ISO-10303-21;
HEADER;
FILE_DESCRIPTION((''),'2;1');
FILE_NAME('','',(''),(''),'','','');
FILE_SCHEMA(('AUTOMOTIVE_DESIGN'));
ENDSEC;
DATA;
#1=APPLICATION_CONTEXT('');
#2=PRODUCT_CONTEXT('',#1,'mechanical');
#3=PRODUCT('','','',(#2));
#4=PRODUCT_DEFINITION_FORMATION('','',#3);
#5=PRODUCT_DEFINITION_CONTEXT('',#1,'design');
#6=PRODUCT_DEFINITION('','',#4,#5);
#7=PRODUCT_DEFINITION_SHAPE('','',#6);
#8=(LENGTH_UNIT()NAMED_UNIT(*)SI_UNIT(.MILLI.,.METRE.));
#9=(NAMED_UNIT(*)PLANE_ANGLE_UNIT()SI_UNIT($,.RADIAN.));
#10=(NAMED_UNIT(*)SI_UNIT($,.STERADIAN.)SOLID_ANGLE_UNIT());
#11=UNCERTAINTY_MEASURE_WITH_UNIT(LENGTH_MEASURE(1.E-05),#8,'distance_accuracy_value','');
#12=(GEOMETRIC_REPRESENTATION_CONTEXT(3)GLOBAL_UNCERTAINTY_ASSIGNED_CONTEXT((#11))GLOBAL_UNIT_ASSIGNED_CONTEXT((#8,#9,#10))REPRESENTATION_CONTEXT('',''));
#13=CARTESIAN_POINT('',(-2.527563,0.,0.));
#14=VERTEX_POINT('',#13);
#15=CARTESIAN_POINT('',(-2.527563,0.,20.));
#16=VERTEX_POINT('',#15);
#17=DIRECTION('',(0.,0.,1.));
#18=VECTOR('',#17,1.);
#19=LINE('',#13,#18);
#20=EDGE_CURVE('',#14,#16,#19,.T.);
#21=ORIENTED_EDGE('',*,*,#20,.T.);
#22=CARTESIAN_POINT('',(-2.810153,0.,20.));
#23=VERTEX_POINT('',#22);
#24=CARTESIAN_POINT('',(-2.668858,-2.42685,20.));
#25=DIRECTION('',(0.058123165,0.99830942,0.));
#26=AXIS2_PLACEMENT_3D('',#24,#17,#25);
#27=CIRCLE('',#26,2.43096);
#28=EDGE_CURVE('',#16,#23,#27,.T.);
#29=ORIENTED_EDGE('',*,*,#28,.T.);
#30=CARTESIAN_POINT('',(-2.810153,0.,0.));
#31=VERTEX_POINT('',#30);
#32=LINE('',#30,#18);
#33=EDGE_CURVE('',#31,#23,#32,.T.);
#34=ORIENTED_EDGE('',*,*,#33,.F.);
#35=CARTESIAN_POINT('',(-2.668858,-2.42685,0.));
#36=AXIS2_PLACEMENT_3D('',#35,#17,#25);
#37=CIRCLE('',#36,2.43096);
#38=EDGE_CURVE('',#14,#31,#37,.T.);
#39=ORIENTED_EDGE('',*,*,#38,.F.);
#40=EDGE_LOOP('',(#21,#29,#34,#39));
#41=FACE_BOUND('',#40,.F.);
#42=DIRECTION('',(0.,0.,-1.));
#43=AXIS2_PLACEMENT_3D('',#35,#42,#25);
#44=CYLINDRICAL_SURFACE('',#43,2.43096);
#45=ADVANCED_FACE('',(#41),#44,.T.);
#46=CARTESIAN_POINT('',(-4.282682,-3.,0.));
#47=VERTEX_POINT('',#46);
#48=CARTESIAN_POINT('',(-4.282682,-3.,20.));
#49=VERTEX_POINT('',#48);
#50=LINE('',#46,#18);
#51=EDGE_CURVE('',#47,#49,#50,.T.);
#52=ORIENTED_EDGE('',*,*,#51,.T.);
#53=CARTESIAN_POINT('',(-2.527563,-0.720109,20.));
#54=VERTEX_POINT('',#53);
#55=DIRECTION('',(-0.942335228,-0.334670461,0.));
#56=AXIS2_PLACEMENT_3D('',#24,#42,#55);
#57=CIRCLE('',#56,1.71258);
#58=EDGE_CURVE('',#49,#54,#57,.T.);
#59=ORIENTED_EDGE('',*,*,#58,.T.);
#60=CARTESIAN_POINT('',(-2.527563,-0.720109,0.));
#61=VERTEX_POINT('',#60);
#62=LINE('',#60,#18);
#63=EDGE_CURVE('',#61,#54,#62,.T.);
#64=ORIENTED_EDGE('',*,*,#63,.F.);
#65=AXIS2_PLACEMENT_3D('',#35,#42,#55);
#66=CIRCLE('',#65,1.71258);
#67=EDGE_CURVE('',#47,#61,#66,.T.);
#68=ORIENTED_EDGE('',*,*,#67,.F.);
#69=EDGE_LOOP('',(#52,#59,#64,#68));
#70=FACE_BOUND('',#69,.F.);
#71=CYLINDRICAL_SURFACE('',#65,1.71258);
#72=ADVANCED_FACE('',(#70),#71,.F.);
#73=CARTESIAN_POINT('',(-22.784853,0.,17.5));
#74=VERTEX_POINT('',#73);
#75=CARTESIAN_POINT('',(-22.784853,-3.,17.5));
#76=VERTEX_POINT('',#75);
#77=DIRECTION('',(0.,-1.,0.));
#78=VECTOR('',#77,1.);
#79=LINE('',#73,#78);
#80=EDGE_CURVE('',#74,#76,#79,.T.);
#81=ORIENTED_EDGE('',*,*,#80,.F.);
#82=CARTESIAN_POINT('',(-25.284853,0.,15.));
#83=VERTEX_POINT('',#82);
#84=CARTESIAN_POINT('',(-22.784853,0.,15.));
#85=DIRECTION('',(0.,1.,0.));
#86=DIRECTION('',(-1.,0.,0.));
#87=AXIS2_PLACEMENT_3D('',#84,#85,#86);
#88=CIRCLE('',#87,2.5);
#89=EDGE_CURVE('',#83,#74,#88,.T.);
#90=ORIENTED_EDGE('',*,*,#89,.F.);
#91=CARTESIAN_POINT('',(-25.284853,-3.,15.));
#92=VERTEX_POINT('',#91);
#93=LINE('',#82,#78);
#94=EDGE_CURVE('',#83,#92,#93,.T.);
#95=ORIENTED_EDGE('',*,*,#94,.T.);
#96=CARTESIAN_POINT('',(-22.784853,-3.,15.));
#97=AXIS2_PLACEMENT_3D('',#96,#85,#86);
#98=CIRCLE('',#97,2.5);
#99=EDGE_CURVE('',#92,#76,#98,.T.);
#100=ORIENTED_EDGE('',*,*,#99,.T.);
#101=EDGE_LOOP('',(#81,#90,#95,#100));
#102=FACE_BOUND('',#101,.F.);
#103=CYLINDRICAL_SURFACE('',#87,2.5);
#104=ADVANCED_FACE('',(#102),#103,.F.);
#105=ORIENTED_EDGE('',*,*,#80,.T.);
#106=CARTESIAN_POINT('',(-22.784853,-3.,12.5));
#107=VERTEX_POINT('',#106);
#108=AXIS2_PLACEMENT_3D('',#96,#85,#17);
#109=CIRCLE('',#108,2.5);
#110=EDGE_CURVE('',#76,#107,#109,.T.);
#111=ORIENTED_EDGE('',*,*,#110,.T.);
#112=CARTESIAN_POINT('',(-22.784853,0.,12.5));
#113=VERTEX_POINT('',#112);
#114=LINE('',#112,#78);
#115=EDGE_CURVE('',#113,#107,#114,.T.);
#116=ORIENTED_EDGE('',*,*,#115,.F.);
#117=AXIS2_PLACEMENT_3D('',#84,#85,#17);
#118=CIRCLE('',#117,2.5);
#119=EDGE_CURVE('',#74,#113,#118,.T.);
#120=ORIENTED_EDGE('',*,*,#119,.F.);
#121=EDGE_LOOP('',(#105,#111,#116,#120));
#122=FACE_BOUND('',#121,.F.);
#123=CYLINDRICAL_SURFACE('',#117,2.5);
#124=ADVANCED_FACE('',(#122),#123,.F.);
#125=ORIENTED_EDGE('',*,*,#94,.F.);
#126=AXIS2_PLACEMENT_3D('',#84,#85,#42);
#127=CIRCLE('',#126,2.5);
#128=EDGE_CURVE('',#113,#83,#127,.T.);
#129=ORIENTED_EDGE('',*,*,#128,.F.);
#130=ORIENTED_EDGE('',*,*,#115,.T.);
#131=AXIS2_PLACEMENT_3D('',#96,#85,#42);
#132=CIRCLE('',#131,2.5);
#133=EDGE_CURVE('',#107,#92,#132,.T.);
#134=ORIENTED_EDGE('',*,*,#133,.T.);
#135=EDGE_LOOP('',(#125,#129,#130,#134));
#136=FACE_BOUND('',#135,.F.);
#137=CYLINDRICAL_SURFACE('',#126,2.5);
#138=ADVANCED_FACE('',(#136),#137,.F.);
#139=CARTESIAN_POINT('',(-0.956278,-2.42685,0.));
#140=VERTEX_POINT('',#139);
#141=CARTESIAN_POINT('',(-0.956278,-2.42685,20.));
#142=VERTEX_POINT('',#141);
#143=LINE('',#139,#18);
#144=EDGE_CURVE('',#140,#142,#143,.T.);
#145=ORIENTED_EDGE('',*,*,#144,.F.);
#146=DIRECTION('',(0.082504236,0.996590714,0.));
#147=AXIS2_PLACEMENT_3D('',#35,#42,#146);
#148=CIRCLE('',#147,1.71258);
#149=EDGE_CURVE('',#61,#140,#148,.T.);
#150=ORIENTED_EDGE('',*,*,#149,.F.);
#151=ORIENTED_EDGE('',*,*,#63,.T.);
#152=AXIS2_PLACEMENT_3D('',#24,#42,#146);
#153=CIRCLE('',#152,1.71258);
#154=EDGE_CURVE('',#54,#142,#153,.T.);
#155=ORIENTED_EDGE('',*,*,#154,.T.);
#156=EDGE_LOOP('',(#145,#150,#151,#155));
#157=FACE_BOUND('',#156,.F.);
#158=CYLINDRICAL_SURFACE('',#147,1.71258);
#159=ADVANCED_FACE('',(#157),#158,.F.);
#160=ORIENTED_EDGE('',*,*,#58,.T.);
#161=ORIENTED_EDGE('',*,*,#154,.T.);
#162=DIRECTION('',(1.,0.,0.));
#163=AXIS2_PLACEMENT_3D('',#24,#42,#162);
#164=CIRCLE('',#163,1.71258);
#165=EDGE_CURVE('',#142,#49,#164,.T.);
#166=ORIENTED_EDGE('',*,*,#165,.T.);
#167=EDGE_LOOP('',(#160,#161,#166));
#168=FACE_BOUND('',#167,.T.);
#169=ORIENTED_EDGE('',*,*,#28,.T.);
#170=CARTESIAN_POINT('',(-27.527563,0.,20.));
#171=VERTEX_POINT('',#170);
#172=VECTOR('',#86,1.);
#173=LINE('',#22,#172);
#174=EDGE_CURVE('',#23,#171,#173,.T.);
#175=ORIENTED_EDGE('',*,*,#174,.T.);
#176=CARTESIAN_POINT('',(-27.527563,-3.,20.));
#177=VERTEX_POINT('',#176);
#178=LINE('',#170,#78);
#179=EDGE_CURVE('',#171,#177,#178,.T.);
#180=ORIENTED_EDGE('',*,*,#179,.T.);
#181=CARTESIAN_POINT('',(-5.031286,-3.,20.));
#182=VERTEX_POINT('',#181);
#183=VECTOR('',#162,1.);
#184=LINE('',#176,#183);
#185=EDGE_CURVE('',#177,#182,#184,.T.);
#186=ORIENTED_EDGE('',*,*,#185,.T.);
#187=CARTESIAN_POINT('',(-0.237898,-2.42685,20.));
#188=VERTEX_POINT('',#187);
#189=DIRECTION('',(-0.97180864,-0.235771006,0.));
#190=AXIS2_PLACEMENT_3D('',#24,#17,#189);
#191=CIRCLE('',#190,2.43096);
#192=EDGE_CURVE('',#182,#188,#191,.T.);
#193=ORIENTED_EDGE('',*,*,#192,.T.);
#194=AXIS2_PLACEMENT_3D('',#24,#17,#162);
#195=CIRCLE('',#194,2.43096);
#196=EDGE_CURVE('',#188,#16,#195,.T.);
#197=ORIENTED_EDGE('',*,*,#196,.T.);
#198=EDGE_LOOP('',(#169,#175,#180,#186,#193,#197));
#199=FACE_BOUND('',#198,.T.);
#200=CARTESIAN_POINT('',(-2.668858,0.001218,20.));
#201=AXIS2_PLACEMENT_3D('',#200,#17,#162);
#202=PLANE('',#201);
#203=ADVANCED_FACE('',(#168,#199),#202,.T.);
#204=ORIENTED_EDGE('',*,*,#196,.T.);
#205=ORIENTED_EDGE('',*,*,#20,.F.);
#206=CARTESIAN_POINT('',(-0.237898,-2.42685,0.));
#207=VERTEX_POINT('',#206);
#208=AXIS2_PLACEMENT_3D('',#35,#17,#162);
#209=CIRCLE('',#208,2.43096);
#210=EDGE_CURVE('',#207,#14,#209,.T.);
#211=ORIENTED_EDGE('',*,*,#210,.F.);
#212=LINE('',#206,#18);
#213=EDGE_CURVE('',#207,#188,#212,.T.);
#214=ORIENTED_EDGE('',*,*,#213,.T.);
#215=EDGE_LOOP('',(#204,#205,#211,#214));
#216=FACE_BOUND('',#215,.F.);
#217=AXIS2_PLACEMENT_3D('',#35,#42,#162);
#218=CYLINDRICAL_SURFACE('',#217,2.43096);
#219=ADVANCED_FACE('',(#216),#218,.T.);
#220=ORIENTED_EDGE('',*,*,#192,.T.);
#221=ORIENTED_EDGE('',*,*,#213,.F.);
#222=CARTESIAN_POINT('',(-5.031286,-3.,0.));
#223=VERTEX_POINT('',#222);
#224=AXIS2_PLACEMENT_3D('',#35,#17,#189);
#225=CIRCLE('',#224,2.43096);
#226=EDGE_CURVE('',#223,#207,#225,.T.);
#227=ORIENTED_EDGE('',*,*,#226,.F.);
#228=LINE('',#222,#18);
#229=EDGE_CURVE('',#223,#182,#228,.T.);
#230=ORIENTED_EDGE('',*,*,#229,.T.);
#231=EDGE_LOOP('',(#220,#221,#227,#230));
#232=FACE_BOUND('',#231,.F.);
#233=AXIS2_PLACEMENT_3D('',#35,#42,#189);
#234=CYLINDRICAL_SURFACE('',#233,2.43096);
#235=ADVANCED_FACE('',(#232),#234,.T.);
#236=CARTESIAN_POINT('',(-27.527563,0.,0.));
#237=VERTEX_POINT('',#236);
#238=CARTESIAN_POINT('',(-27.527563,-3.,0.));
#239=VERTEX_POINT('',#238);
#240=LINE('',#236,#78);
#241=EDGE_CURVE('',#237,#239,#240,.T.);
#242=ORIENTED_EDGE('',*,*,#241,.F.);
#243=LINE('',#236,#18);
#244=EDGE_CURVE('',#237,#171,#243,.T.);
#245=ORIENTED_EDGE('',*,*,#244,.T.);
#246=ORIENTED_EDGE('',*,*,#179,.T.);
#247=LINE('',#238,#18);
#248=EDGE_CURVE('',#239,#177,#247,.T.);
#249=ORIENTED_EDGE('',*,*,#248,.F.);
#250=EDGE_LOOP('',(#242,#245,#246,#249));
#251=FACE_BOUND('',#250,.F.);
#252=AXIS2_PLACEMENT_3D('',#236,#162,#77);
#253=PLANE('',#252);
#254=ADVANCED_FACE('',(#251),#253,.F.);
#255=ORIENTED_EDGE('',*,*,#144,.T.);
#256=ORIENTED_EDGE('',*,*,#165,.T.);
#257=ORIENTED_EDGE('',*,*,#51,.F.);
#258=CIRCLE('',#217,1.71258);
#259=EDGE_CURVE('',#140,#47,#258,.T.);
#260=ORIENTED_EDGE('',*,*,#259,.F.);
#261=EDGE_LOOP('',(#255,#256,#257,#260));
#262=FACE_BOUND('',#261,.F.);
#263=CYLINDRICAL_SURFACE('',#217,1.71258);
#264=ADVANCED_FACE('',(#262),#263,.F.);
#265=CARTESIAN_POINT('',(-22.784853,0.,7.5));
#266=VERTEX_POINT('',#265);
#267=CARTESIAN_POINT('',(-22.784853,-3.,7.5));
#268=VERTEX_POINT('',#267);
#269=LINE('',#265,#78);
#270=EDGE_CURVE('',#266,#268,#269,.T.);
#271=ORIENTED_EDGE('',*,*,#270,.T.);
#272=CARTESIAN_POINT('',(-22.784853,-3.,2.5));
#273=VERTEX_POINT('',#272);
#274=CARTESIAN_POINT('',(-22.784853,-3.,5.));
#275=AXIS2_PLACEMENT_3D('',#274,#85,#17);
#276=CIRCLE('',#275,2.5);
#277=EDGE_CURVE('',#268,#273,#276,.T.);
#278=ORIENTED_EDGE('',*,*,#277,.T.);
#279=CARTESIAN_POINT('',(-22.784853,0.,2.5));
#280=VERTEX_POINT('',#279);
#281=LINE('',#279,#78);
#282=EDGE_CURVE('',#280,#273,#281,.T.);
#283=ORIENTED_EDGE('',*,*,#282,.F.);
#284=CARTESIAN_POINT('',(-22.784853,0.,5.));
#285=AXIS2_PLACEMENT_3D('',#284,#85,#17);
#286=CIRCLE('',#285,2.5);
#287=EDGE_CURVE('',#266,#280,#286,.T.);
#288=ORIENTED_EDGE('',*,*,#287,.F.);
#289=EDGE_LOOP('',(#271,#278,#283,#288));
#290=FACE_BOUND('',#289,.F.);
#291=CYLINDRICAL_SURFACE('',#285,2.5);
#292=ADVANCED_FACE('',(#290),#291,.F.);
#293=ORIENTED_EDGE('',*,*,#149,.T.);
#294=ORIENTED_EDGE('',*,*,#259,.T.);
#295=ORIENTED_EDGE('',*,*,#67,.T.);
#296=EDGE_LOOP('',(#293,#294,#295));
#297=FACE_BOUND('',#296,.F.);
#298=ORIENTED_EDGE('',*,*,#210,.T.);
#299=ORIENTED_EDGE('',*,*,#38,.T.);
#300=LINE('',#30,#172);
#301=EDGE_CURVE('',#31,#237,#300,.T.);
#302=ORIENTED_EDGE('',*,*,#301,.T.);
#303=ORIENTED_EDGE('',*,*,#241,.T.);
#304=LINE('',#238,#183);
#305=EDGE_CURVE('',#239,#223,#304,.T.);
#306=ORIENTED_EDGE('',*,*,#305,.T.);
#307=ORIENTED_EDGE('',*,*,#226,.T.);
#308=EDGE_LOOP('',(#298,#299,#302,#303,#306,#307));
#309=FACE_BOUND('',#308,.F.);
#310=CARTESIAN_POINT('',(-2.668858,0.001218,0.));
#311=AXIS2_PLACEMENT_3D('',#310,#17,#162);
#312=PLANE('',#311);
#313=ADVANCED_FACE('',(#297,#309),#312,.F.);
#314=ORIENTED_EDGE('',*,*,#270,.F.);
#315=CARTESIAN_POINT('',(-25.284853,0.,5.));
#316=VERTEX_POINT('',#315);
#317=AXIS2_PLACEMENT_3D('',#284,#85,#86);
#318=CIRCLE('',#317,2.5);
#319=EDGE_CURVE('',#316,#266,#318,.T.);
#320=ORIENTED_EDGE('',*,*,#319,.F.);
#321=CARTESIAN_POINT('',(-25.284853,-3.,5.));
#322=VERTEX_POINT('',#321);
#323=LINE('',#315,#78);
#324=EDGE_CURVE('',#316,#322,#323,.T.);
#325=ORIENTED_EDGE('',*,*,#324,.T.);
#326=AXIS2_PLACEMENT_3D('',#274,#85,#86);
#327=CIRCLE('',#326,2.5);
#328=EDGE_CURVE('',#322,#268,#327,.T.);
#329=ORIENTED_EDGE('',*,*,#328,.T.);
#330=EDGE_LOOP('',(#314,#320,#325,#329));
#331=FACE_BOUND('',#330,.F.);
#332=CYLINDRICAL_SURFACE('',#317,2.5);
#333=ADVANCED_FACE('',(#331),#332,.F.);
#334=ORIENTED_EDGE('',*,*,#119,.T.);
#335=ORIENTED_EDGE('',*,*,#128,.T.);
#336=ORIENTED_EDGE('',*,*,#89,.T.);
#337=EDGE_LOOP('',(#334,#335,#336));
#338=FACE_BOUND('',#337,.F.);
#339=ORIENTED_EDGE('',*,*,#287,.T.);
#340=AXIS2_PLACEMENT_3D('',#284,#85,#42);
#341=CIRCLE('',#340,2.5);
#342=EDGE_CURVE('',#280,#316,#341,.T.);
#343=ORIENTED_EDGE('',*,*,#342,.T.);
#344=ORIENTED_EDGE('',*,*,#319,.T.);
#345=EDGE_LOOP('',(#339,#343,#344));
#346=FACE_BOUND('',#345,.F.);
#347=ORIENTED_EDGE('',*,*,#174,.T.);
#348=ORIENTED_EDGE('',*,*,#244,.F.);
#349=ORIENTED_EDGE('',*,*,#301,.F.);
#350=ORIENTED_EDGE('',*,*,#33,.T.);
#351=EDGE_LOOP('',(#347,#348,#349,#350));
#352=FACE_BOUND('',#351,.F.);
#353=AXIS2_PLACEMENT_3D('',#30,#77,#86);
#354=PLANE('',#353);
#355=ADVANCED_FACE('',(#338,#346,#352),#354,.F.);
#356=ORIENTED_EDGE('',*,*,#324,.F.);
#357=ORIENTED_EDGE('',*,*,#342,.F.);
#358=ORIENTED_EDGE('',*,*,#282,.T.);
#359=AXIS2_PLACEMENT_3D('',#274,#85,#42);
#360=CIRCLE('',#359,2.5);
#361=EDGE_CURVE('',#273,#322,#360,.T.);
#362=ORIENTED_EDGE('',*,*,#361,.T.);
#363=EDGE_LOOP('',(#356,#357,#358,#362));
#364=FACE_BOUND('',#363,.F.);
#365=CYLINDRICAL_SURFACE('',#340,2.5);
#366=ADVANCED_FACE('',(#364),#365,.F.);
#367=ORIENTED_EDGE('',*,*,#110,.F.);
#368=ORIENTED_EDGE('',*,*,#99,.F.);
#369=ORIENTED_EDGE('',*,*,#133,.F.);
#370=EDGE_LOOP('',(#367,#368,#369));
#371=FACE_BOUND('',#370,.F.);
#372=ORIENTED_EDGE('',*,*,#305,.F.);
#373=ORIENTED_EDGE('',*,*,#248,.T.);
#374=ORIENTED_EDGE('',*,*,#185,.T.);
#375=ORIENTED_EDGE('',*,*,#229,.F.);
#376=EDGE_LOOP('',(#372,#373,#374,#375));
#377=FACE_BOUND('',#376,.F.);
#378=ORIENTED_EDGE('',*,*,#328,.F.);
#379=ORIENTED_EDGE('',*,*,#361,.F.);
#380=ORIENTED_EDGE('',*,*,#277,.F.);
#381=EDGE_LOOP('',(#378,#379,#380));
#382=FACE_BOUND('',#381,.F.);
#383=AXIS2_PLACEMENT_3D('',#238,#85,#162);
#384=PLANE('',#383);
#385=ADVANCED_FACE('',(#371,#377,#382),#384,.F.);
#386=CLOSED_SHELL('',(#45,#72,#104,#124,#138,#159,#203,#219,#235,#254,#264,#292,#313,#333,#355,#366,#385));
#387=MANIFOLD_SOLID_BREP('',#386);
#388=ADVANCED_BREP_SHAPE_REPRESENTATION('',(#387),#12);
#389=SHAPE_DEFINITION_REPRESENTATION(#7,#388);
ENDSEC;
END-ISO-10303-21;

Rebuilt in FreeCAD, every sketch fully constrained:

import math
import FreeCAD as App
import Part
import Sketcher
from FreeCAD import Vector
Q = App.Units.Quantity

doc = App.newDocument("Part")
body = doc.addObject("PartDesign::Body", "Body")

# Sketch on XY plane
sketch1 = body.newObject("Sketcher::SketchObject", "Sketch")
sketch1.AttachmentSupport = (doc.getObject("XY_Plane"), [""])
sketch1.MapMode = "FlatFace"
sketch1.addGeometry(Part.ArcOfCircle(Part.Circle(Vector(-2.67, -2.43, 0), Vector(0, 0, 1), 2.43), math.radians(86.67), math.radians(93.33)), False)
sketch1.addGeometry(Part.LineSegment(Vector(-2.81, 0, 0), Vector(-27.53, 0, 0)), False)
sketch1.addGeometry(Part.LineSegment(Vector(-27.53, 0, 0), Vector(-27.53, -3, 0)), False)
sketch1.addGeometry(Part.LineSegment(Vector(-27.53, -3, 0), Vector(-5.03, -3, 0)), False)
sketch1.addGeometry(Part.ArcOfCircle(Part.Circle(Vector(-2.67, -2.43, 0), Vector(0, 0, 1), 2.43), math.radians(-166), math.radians(0)), False)
sketch1.addGeometry(Part.ArcOfCircle(Part.Circle(Vector(-2.67, -2.43, 0), Vector(0, 0, 1), 2.43), math.radians(0), math.radians(87)), False)
sketch1.addGeometry(Part.ArcOfCircle(Part.Circle(Vector(-2.67, -2.43, 0), Vector(0, 0, 1), 1.71), math.radians(85), math.radians(200)), False)
sketch1.addGeometry(Part.ArcOfCircle(Part.Circle(Vector(-2.67, -2.43, 0), Vector(0, 0, 1), 1.71), math.radians(0), math.radians(85)), False)
sketch1.addGeometry(Part.ArcOfCircle(Part.Circle(Vector(-2.67, -2.43, 0), Vector(0, 0, 1), 1.71), math.radians(-160), math.radians(0)), False)
sketch1.addConstraint(Sketcher.Constraint("Coincident", 0, 2, 1, 1))
sketch1.addConstraint(Sketcher.Constraint("Coincident", 1, 2, 2, 1))
sketch1.addConstraint(Sketcher.Constraint("Coincident", 2, 2, 3, 1))
sketch1.addConstraint(Sketcher.Constraint("Coincident", 3, 2, 4, 1))
sketch1.addConstraint(Sketcher.Constraint("Tangent", 4, 2, 5, 1))
sketch1.addConstraint(Sketcher.Constraint("Tangent", 5, 2, 0, 1))
sketch1.addConstraint(Sketcher.Constraint("Tangent", 6, 1, 7, 2))
sketch1.addConstraint(Sketcher.Constraint("Tangent", 7, 1, 8, 2))
sketch1.addConstraint(Sketcher.Constraint("Tangent", 8, 1, 6, 2))
sketch1.addConstraint(Sketcher.Constraint("Horizontal", 1))
sketch1.addConstraint(Sketcher.Constraint("Vertical", 2))
sketch1.addConstraint(Sketcher.Constraint("Horizontal", 3))
sketch1.addConstraint(Sketcher.Constraint("Coincident", 4, 3, 0, 3))
sketch1.addConstraint(Sketcher.Constraint("Coincident", 6, 3, 0, 3))
sketch1.addConstraint(Sketcher.Constraint("PointOnObject", 0, 2, -1))
sketch1.addConstraint(Sketcher.Constraint("PointOnObject", 5, 2, -1))
sketch1.addConstraint(Sketcher.Constraint("Horizontal", 8, 3, 4, 2))
sketch1.addConstraint(Sketcher.Constraint("Horizontal", 4, 2, 7, 1))
sketch1.addConstraint(Sketcher.Constraint("Horizontal", 3, 2, 8, 1))
sketch1.addConstraint(Sketcher.Constraint("Vertical", 5, 2, 6, 1))
sketch1.addConstraint(Sketcher.Constraint("DistanceY", 2, 2, 2, 1, Q("3 mm")))
sketch1.addConstraint(Sketcher.Constraint("Radius", 0, Q("2.43096 mm")))
sketch1.addConstraint(Sketcher.Constraint("Radius", 6, Q("1.71258 mm")))
sketch1.addConstraint(Sketcher.Constraint("DistanceX", 1, 2, 1, 1, Q("24.71741 mm")))
sketch1.addConstraint(Sketcher.Constraint("DistanceX", 3, 1, 3, 2, Q("22.496277 mm")))
sketch1.addConstraint(Sketcher.Constraint("DistanceX", 8, 1, -1, 1, Q("4.282682 mm")))
pad1 = body.newObject("PartDesign::Pad", "Pad")
pad1.Profile = sketch1
pad1.Length = 20

# Sketch on XZ plane
sketch2 = body.newObject("Sketcher::SketchObject", "Sketch001")
sketch2.AttachmentSupport = (doc.getObject("XZ_Plane"), [""])
sketch2.MapMode = "FlatFace"
sketch2.addGeometry(Part.ArcOfCircle(Part.Circle(Vector(-22.8, 5, 0), Vector(0, 0, 1), 2.5), math.radians(180), math.radians(270)), False)
sketch2.addGeometry(Part.ArcOfCircle(Part.Circle(Vector(-22.8, 5, 0), Vector(0, 0, 1), 2.5), math.radians(90), math.radians(180)), False)
sketch2.addGeometry(Part.LineSegment(Vector(-22.8, 7.5, 0), Vector(-22.8, 2.5, 0)), False)
sketch2.addGeometry(Part.ArcOfCircle(Part.Circle(Vector(-22.8, 15, 0), Vector(0, 0, 1), 2.5), math.radians(180), math.radians(270)), False)
sketch2.addGeometry(Part.ArcOfCircle(Part.Circle(Vector(-22.8, 15, 0), Vector(0, 0, 1), 2.5), math.radians(90), math.radians(180)), False)
sketch2.addGeometry(Part.ArcOfCircle(Part.Circle(Vector(-22.8, 15, 0), Vector(0, 0, 1), 2.5), math.radians(-90), math.radians(90)), False)
sketch2.addConstraint(Sketcher.Constraint("Tangent", 0, 1, 1, 2))
sketch2.addConstraint(Sketcher.Constraint("Coincident", 1, 1, 2, 1))
sketch2.addConstraint(Sketcher.Constraint("Coincident", 2, 2, 0, 2))
sketch2.addConstraint(Sketcher.Constraint("Tangent", 3, 1, 4, 2))
sketch2.addConstraint(Sketcher.Constraint("Tangent", 4, 1, 5, 2))
sketch2.addConstraint(Sketcher.Constraint("Tangent", 5, 1, 3, 2))
sketch2.addConstraint(Sketcher.Constraint("Vertical", 2))
sketch2.addConstraint(Sketcher.Constraint("Equal", 0, 1))
sketch2.addConstraint(Sketcher.Constraint("Equal", 1, 3))
sketch2.addConstraint(Sketcher.Constraint("Horizontal", 1, 3, 0, 1))
sketch2.addConstraint(Sketcher.Constraint("Horizontal", 5, 3, 3, 1))
sketch2.addConstraint(Sketcher.Constraint("Vertical", 1, 3, 3, 3))
sketch2.addConstraint(Sketcher.Constraint("Vertical", 5, 3, 1, 1))
sketch2.addConstraint(Sketcher.Constraint("Vertical", 2, 2, 4, 1))
sketch2.addConstraint(Sketcher.Constraint("Vertical", 4, 1, 5, 1))
sketch2.addConstraint(Sketcher.Constraint("Radius", 0, Q("2.5 mm")))
sketch2.addConstraint(Sketcher.Constraint("DistanceY", -1, 1, 0, 3, Q("5 mm")))
sketch2.addConstraint(Sketcher.Constraint("DistanceY", -1, 1, 3, 3, Q("15 mm")))
sketch2.addConstraint(Sketcher.Constraint("DistanceX", 0, 3, -1, 1, Q("22.784853 mm")))
pocket1 = body.newObject("PartDesign::Pocket", "Pocket")
pocket1.Profile = sketch2
pocket1.Length = 25
pocket1.Reversed = True

# Sketch on XZ plane
sketch3 = body.newObject("Sketcher::SketchObject", "Sketch002")
sketch3.AttachmentSupport = (doc.getObject("XZ_Plane"), [""])
sketch3.MapMode = "FlatFace"
sketch3.addGeometry(Part.ArcOfCircle(Part.Circle(Vector(-22.8, 5, 0), Vector(0, 0, 1), 2.5), math.radians(-90), math.radians(90)), False)
sketch3.addGeometry(Part.LineSegment(Vector(-22.8, 2.5, 0), Vector(-22.8, 7.5, 0)), False)
sketch3.addConstraint(Sketcher.Constraint("Coincident", 0, 1, 1, 1))
sketch3.addConstraint(Sketcher.Constraint("Coincident", 1, 2, 0, 2))
sketch3.addConstraint(Sketcher.Constraint("Vertical", 1))
sketch3.addConstraint(Sketcher.Constraint("Radius", 0, Q("2.5 mm")))
sketch3.addConstraint(Sketcher.Constraint("DistanceY", -1, 1, 0, 3, Q("5 mm")))
sketch3.addConstraint(Sketcher.Constraint("DistanceX", 0, 3, -1, 1, Q("22.784853 mm")))
sketch3.addConstraint(Sketcher.Constraint("DistanceX", 0, 1, -1, 1, Q("22.784853 mm")))
pocket2 = body.newObject("PartDesign::Pocket", "Pocket001")
pocket2.Profile = sketch3
pocket2.Length = 25
pocket2.Reversed = True

doc.recompute()
